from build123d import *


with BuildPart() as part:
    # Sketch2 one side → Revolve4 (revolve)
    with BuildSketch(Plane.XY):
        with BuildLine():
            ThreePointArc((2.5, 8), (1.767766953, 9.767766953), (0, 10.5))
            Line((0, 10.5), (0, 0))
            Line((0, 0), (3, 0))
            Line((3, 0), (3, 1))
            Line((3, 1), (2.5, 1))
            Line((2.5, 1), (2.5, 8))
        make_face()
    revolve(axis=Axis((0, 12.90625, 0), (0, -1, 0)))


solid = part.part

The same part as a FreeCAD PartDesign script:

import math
import FreeCAD as App
import Part
import Sketcher
from FreeCAD import Vector
Q = App.Units.Quantity

doc = App.newDocument("Part")
body = doc.addObject("PartDesign::Body", "Body")

sketch1 = body.newObject("Sketcher::SketchObject", "Sketch")
sketch1.AttachmentSupport = (doc.getObject("XY_Plane"), [""])
sketch1.MapMode = "FlatFace"
sketch1.addGeometry([
    Part.ArcOfCircle(Part.Circle(Vector(0, 8, 0), Vector(0, 0, 1), 2.5), math.radians(0), math.radians(90)),
    Part.LineSegment(Vector(0, 10.5, 0), Vector(0, 0, 0)),
    Part.LineSegment(Vector(0, 0, 0), Vector(3, 0, 0)),
    Part.LineSegment(Vector(3, 0, 0), Vector(3, 1, 0)),
    Part.LineSegment(Vector(3, 1, 0), Vector(2.5, 1, 0)),
    Part.LineSegment(Vector(2.5, 1, 0), Vector(2.5, 8, 0)),
], False)
sketch1.addConstraint([
    Sketcher.Constraint("Coincident", 0, 2, 1, 1),
    Sketcher.Constraint("Coincident", 1, 2, 2, 1),
    Sketcher.Constraint("Coincident", 2, 2, 3, 1),
    Sketcher.Constraint("Coincident", 3, 2, 4, 1),
    Sketcher.Constraint("Coincident", 4, 2, 5, 1),
    Sketcher.Constraint("Tangent", 5, 2, 0, 1),
    Sketcher.Constraint("Vertical", 1),
    Sketcher.Constraint("Horizontal", 2),
    Sketcher.Constraint("Vertical", 3),
    Sketcher.Constraint("Horizontal", 4),
    Sketcher.Constraint("Vertical", 5),
    Sketcher.Constraint("Coincident", 1, 2, -1, 1),
    Sketcher.Constraint("PointOnObject", 0, 3, -2),
    Sketcher.Constraint("Radius", 0, Q("2.5 mm")),
    Sketcher.Constraint("DistanceX", 2, 1, 2, 2, Q("3 mm")),
    Sketcher.Constraint("DistanceY", 3, 1, 3, 2, Q("1 mm")),
    Sketcher.Constraint("DistanceY", 5, 1, 5, 2, Q("7 mm")),
])
revolution = body.newObject("PartDesign::Revolution", "Revolution")
revolution.Profile = sketch1
revolution.ReferenceAxis = (sketch1, ["V_Axis"])
revolution.Angle = 360

doc.recompute()
